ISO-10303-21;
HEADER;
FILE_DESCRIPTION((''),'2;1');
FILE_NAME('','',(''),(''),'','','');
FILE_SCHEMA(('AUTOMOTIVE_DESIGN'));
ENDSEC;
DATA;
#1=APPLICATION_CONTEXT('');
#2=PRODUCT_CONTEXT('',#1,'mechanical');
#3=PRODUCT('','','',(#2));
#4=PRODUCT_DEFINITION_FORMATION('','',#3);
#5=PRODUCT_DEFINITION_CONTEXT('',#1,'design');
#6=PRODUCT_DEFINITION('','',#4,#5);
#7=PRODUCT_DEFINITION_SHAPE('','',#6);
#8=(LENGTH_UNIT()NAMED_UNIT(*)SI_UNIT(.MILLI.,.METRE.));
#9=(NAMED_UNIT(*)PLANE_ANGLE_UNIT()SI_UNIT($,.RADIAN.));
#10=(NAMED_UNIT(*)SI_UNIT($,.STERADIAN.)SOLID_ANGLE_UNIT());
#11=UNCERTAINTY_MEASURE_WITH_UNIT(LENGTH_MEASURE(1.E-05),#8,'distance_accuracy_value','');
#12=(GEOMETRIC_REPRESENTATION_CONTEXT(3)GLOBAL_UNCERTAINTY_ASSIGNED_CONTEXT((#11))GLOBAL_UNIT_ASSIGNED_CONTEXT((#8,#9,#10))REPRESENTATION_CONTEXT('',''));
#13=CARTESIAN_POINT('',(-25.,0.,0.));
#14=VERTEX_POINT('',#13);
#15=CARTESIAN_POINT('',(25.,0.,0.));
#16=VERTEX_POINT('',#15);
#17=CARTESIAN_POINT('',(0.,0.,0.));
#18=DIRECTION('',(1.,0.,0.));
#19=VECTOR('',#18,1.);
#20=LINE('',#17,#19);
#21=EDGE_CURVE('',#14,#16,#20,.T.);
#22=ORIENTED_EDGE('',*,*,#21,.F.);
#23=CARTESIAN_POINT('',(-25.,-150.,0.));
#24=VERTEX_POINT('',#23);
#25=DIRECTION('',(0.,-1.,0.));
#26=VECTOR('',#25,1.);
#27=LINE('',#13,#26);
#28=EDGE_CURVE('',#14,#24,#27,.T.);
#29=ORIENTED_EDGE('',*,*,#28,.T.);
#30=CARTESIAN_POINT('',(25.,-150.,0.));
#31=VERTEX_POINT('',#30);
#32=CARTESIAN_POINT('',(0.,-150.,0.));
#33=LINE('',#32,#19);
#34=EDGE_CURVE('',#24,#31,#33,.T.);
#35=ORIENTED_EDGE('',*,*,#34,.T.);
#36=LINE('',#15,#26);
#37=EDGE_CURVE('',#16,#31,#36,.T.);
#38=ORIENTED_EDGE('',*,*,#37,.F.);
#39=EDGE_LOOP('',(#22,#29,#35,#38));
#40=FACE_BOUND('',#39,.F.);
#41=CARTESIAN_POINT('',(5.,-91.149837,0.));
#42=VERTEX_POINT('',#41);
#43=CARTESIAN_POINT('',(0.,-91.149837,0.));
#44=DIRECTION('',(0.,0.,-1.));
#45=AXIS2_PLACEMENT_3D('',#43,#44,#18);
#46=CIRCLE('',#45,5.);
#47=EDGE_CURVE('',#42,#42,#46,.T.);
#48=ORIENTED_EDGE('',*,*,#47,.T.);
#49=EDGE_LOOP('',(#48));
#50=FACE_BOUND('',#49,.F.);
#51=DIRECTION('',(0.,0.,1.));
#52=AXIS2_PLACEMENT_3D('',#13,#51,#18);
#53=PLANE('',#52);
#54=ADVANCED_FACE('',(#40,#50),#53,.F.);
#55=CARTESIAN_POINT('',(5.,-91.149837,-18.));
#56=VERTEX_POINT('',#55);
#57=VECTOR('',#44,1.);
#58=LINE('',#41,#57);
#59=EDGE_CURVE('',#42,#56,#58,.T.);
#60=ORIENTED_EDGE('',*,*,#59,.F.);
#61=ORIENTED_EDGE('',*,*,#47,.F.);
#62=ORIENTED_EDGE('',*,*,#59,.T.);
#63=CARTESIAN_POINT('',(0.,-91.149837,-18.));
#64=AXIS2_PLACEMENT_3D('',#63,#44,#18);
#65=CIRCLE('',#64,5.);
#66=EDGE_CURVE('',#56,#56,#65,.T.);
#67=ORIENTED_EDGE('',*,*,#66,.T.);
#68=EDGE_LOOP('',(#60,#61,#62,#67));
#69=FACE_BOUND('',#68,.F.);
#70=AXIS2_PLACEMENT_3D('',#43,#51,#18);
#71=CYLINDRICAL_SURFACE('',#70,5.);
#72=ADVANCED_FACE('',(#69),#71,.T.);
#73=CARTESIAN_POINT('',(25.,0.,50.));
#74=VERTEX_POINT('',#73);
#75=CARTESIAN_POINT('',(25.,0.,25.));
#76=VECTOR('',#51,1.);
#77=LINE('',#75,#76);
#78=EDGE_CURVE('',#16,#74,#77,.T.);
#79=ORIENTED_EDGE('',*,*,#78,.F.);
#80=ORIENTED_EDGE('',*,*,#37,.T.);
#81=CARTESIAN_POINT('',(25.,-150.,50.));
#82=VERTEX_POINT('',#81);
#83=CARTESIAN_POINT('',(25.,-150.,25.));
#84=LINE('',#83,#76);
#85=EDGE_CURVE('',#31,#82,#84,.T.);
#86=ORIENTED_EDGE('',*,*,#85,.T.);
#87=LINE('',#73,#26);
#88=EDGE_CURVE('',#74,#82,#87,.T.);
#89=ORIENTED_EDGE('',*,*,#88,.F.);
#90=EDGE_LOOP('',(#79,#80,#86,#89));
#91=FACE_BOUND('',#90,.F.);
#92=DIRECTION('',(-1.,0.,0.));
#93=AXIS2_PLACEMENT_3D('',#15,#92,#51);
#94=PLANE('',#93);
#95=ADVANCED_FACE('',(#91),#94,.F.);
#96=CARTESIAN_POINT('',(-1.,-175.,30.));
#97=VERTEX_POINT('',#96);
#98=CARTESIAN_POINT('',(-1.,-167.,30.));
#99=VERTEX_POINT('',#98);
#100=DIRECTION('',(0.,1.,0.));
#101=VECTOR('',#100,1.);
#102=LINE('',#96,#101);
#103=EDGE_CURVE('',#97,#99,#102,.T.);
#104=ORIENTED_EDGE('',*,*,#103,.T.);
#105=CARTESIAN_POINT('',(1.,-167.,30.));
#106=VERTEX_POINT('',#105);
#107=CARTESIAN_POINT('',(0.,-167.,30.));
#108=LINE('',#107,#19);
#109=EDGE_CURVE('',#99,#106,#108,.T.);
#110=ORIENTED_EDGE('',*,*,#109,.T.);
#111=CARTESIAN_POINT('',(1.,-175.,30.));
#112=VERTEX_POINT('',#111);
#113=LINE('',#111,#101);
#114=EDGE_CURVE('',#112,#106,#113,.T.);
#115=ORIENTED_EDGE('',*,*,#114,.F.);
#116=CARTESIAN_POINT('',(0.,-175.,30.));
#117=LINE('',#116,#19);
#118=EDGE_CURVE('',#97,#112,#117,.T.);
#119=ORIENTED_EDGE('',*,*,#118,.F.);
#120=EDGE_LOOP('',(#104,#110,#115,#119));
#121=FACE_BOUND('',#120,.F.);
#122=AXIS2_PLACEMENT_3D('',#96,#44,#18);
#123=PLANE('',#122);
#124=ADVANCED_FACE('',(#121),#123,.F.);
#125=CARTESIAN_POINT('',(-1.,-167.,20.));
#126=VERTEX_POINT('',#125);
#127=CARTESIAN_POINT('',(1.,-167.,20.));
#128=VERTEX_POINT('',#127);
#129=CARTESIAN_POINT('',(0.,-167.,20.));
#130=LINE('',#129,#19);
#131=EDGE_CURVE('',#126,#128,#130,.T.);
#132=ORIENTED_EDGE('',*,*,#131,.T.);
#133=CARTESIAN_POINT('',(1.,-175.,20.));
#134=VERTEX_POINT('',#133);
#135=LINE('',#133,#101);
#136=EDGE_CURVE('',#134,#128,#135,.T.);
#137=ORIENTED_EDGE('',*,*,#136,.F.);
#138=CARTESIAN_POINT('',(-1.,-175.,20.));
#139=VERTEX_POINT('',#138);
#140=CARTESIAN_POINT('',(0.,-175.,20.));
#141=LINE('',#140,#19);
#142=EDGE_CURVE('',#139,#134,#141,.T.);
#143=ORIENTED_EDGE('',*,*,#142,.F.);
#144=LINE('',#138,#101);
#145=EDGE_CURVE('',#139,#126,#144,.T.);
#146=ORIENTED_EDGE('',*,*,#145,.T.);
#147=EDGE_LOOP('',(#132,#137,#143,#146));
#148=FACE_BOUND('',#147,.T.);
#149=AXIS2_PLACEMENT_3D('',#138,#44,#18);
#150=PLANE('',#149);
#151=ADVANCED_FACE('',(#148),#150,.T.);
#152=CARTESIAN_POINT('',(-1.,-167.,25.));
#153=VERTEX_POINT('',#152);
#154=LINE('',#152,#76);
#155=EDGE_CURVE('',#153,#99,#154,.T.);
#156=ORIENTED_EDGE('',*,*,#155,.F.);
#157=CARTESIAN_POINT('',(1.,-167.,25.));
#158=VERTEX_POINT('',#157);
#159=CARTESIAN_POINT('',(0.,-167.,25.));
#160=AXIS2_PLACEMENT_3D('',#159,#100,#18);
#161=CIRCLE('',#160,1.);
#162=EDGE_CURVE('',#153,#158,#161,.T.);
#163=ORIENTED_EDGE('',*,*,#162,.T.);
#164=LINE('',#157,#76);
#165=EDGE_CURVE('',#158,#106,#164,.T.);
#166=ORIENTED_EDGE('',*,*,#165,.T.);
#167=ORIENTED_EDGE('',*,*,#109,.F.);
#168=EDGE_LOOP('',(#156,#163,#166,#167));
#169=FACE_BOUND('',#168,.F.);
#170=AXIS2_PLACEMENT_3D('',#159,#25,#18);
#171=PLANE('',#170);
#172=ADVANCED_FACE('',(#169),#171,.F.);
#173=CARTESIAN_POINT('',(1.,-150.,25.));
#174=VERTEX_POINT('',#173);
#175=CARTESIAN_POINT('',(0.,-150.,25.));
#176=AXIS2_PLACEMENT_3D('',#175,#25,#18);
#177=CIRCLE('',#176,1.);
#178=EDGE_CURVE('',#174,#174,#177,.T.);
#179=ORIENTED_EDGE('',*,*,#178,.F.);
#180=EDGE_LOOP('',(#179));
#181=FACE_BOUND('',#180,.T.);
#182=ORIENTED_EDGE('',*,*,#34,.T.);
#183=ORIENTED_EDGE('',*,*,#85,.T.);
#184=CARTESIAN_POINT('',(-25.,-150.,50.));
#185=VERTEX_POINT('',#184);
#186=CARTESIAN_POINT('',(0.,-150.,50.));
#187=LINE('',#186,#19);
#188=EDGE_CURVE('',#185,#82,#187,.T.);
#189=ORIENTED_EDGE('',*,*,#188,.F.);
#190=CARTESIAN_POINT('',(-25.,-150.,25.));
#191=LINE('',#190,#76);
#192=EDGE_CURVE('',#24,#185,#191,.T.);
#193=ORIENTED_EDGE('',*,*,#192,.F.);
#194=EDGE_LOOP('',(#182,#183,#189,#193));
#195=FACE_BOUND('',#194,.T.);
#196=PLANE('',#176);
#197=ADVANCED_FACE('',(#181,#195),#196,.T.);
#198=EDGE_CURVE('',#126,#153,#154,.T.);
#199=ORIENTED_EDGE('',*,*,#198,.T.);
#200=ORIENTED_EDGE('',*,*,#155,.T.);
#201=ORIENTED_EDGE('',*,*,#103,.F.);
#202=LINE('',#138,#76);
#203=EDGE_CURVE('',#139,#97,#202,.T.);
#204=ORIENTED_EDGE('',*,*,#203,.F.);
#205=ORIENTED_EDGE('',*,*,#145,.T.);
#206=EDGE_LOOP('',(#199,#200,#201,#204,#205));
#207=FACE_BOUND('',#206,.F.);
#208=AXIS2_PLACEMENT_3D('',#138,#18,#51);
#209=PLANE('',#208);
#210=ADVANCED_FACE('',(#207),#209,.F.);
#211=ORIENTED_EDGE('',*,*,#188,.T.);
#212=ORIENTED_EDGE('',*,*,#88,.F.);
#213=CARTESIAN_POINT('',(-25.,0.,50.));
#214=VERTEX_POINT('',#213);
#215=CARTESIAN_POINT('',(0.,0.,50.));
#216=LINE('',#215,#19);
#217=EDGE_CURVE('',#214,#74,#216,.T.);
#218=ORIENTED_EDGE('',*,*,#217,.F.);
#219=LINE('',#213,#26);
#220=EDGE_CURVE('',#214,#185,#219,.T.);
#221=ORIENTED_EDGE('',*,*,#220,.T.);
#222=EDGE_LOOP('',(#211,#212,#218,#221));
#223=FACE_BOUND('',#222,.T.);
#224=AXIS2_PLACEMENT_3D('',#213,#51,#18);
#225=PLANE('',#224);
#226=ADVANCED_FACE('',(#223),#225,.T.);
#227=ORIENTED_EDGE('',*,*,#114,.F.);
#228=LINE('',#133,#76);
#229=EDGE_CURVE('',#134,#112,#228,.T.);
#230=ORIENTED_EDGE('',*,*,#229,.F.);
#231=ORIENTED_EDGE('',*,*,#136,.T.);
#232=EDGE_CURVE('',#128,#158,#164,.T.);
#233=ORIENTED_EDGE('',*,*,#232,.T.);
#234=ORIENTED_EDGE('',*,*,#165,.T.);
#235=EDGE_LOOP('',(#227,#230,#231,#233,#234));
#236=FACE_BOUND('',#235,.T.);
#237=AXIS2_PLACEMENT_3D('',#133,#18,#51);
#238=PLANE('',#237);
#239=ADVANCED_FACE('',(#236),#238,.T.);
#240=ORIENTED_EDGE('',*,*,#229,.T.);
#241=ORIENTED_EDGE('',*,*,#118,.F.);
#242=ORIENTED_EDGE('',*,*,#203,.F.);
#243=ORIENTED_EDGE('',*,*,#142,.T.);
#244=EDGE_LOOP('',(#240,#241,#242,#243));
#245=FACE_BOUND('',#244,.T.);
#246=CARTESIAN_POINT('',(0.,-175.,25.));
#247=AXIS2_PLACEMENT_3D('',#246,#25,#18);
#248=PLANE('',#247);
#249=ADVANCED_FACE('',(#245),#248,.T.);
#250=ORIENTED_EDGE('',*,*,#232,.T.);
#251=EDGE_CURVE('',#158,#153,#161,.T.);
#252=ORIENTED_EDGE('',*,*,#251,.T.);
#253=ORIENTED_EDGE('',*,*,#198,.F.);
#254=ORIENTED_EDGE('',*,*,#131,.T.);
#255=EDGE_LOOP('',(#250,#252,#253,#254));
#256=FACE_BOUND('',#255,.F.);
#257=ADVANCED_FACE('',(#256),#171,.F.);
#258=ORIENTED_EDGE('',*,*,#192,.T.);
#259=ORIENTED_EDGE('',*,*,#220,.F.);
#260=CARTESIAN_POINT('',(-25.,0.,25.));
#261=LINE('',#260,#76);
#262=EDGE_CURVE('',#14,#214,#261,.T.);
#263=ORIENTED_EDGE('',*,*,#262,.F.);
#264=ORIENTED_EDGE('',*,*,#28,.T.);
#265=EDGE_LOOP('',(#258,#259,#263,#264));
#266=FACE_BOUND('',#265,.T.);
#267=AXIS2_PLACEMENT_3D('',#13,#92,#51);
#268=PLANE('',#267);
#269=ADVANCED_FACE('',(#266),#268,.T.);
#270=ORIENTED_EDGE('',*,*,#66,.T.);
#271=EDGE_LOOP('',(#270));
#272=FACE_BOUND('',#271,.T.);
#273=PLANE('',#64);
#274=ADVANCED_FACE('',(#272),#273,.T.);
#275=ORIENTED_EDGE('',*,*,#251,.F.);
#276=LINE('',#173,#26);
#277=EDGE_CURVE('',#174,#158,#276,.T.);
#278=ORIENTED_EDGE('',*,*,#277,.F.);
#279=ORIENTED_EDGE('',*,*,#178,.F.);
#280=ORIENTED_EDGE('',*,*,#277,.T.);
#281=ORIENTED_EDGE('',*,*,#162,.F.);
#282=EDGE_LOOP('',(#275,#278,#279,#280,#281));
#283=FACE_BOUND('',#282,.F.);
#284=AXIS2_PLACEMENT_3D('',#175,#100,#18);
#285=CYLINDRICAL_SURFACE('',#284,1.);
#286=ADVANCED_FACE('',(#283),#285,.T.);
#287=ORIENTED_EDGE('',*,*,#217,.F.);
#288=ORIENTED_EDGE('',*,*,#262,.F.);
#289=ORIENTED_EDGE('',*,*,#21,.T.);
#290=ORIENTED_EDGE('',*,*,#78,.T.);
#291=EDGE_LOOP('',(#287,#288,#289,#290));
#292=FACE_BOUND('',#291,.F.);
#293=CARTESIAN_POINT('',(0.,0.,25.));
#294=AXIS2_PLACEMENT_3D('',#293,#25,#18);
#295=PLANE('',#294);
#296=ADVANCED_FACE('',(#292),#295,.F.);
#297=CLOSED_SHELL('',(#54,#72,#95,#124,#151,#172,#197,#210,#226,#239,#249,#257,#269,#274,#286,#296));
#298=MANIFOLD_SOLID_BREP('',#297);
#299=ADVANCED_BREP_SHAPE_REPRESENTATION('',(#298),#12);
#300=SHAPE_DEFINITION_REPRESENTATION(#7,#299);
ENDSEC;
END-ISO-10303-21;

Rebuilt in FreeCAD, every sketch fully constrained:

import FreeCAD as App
import Part
import Sketcher
from FreeCAD import Vector

doc = App.newDocument("Part")
body = doc.addObject("PartDesign::Body", "Body")

# Sketch on XZ plane
sketch1 = doc.addObject("Sketcher::SketchObject", "Sketch")
body.addObject(sketch1)
sketch1.AttachmentSupport = (doc.XZ_Plane, [""])
sketch1.MapMode = "FlatFace"
sketch1.addGeometry(Part.LineSegment(Vector(-25, 50, 0), Vector(-25, 0, 0)), False)
sketch1.addGeometry(Part.LineSegment(Vector(-25, 0, 0), Vector(25, 0, 0)), False)
sketch1.addGeometry(Part.LineSegment(Vector(25, 0, 0), Vector(25, 50, 0)), False)
sketch1.addGeometry(Part.LineSegment(Vector(25, 50, 0), Vector(-25, 50, 0)), False)
sketch1.addConstraint(Sketcher.Constraint("Coincident", 0, 2, 1, 1))
sketch1.addConstraint(Sketcher.Constraint("Coincident", 1, 2, 2, 1))
sketch1.addConstraint(Sketcher.Constraint("Coincident", 2, 2, 3, 1))
sketch1.addConstraint(Sketcher.Constraint("Coincident", 3, 2, 0, 1))
sketch1.addConstraint(Sketcher.Constraint("Vertical", 0))
sketch1.addConstraint(Sketcher.Constraint("Horizontal", 1))
sketch1.addConstraint(Sketcher.Constraint("Vertical", 2))
sketch1.addConstraint(Sketcher.Constraint("Horizontal", 3))
sketch1.addConstraint(Sketcher.Constraint("Symmetric", 0, 2, 1, 2, -1, 1))
sketch1.addConstraint(Sketcher.Constraint("Equal", 3, 0))
sketch1.addConstraint(Sketcher.Constraint("DistanceX", 1, 1, 1, 2, 50.0))
pad1 = doc.addObject("PartDesign::Pad", "Pad")
body.addObject(pad1)
pad1.Profile = sketch1
pad1.Length = 150

# Sketch on XZ plane
sketch2 = doc.addObject("Sketcher::SketchObject", "Sketch001")
body.addObject(sketch2)
sketch2.AttachmentSupport = (doc.XZ_Plane, [""])
sketch2.MapMode = "FlatFace"
sketch2.AttachmentOffset = App.Placement(Vector(0, 0, 150), App.Rotation())
sketch2.addGeometry(Part.Circle(Vector(0, 25, 0), Vector(0, 0, 1), 1), False)
sketch2.addConstraint(Sketcher.Constraint("PointOnObject", 0, 3, -2))
sketch2.addConstraint(Sketcher.Constraint("Diameter", 0, 2.0))
sketch2.addConstraint(Sketcher.Constraint("DistanceY", -1, 1, 0, 3, 25.0))
pad2 = doc.addObject("PartDesign::Pad", "Pad001")
body.addObject(pad2)
pad2.Profile = sketch2
pad2.Length = 25

# Sketch on XZ plane
sketch3 = doc.addObject("Sketcher::SketchObject", "Sketch002")
body.addObject(sketch3)
sketch3.AttachmentSupport = (doc.XZ_Plane, [""])
sketch3.MapMode = "FlatFace"
sketch3.AttachmentOffset = App.Placement(Vector(0, 0, 175), App.Rotation())
sketch3.addGeometry(Part.LineSegment(Vector(-1, 30, 0), Vector(-1, 20, 0)), False)
sketch3.addGeometry(Part.LineSegment(Vector(-1, 20, 0), Vector(1, 20, 0)), False)
sketch3.addGeometry(Part.LineSegment(Vector(1, 20, 0), Vector(1, 30, 0)), False)
sketch3.addGeometry(Part.LineSegment(Vector(1, 30, 0), Vector(-1, 30, 0)), False)
sketch3.addConstraint(Sketcher.Constraint("Coincident", 0, 2, 1, 1))
sketch3.addConstraint(Sketcher.Constraint("Coincident", 1, 2, 2, 1))
sketch3.addConstraint(Sketcher.Constraint("Coincident", 2, 2, 3, 1))
sketch3.addConstraint(Sketcher.Constraint("Coincident", 3, 2, 0, 1))
sketch3.addConstraint(Sketcher.Constraint("Vertical", 0))
sketch3.addConstraint(Sketcher.Constraint("Horizontal", 1))
sketch3.addConstraint(Sketcher.Constraint("Vertical", 2))
sketch3.addConstraint(Sketcher.Constraint("Horizontal", 3))
sketch3.addConstraint(Sketcher.Constraint("DistanceX", 1, 1, 1, 2, 2.0))
sketch3.addConstraint(Sketcher.Constraint("DistanceY", 0, 2, 0, 1, 10.0))
sketch3.addConstraint(Sketcher.Constraint("DistanceX", 0, 2, -1, 1, 1.0))
sketch3.addConstraint(Sketcher.Constraint("DistanceY", -1, 1, 0, 2, 20.0))
pad3 = doc.addObject("PartDesign::Pad", "Pad002")
body.addObject(pad3)
pad3.Profile = sketch3
pad3.Length = 8
pad3.Reversed = True

# Sketch on XY plane
sketch4 = doc.addObject("Sketcher::SketchObject", "Sketch003")
body.addObject(sketch4)
sketch4.AttachmentSupport = (doc.XY_Plane, [""])
sketch4.MapMode = "FlatFace"
sketch4.addGeometry(Part.Circle(Vector(0, -91, 0), Vector(0, 0, 1), 5), False)
sketch4.addConstraint(Sketcher.Constraint("PointOnObject", 0, 3, -2))
sketch4.addConstraint(Sketcher.Constraint("Diameter", 0, 10.0))
sketch4.addConstraint(Sketcher.Constraint("DistanceY", 0, 3, -1, 1, 91.149837))
pad4 = doc.addObject("PartDesign::Pad", "Pad003")
body.addObject(pad4)
pad4.Profile = sketch4
pad4.Length = 18
pad4.Reversed = True

doc.recompute()
